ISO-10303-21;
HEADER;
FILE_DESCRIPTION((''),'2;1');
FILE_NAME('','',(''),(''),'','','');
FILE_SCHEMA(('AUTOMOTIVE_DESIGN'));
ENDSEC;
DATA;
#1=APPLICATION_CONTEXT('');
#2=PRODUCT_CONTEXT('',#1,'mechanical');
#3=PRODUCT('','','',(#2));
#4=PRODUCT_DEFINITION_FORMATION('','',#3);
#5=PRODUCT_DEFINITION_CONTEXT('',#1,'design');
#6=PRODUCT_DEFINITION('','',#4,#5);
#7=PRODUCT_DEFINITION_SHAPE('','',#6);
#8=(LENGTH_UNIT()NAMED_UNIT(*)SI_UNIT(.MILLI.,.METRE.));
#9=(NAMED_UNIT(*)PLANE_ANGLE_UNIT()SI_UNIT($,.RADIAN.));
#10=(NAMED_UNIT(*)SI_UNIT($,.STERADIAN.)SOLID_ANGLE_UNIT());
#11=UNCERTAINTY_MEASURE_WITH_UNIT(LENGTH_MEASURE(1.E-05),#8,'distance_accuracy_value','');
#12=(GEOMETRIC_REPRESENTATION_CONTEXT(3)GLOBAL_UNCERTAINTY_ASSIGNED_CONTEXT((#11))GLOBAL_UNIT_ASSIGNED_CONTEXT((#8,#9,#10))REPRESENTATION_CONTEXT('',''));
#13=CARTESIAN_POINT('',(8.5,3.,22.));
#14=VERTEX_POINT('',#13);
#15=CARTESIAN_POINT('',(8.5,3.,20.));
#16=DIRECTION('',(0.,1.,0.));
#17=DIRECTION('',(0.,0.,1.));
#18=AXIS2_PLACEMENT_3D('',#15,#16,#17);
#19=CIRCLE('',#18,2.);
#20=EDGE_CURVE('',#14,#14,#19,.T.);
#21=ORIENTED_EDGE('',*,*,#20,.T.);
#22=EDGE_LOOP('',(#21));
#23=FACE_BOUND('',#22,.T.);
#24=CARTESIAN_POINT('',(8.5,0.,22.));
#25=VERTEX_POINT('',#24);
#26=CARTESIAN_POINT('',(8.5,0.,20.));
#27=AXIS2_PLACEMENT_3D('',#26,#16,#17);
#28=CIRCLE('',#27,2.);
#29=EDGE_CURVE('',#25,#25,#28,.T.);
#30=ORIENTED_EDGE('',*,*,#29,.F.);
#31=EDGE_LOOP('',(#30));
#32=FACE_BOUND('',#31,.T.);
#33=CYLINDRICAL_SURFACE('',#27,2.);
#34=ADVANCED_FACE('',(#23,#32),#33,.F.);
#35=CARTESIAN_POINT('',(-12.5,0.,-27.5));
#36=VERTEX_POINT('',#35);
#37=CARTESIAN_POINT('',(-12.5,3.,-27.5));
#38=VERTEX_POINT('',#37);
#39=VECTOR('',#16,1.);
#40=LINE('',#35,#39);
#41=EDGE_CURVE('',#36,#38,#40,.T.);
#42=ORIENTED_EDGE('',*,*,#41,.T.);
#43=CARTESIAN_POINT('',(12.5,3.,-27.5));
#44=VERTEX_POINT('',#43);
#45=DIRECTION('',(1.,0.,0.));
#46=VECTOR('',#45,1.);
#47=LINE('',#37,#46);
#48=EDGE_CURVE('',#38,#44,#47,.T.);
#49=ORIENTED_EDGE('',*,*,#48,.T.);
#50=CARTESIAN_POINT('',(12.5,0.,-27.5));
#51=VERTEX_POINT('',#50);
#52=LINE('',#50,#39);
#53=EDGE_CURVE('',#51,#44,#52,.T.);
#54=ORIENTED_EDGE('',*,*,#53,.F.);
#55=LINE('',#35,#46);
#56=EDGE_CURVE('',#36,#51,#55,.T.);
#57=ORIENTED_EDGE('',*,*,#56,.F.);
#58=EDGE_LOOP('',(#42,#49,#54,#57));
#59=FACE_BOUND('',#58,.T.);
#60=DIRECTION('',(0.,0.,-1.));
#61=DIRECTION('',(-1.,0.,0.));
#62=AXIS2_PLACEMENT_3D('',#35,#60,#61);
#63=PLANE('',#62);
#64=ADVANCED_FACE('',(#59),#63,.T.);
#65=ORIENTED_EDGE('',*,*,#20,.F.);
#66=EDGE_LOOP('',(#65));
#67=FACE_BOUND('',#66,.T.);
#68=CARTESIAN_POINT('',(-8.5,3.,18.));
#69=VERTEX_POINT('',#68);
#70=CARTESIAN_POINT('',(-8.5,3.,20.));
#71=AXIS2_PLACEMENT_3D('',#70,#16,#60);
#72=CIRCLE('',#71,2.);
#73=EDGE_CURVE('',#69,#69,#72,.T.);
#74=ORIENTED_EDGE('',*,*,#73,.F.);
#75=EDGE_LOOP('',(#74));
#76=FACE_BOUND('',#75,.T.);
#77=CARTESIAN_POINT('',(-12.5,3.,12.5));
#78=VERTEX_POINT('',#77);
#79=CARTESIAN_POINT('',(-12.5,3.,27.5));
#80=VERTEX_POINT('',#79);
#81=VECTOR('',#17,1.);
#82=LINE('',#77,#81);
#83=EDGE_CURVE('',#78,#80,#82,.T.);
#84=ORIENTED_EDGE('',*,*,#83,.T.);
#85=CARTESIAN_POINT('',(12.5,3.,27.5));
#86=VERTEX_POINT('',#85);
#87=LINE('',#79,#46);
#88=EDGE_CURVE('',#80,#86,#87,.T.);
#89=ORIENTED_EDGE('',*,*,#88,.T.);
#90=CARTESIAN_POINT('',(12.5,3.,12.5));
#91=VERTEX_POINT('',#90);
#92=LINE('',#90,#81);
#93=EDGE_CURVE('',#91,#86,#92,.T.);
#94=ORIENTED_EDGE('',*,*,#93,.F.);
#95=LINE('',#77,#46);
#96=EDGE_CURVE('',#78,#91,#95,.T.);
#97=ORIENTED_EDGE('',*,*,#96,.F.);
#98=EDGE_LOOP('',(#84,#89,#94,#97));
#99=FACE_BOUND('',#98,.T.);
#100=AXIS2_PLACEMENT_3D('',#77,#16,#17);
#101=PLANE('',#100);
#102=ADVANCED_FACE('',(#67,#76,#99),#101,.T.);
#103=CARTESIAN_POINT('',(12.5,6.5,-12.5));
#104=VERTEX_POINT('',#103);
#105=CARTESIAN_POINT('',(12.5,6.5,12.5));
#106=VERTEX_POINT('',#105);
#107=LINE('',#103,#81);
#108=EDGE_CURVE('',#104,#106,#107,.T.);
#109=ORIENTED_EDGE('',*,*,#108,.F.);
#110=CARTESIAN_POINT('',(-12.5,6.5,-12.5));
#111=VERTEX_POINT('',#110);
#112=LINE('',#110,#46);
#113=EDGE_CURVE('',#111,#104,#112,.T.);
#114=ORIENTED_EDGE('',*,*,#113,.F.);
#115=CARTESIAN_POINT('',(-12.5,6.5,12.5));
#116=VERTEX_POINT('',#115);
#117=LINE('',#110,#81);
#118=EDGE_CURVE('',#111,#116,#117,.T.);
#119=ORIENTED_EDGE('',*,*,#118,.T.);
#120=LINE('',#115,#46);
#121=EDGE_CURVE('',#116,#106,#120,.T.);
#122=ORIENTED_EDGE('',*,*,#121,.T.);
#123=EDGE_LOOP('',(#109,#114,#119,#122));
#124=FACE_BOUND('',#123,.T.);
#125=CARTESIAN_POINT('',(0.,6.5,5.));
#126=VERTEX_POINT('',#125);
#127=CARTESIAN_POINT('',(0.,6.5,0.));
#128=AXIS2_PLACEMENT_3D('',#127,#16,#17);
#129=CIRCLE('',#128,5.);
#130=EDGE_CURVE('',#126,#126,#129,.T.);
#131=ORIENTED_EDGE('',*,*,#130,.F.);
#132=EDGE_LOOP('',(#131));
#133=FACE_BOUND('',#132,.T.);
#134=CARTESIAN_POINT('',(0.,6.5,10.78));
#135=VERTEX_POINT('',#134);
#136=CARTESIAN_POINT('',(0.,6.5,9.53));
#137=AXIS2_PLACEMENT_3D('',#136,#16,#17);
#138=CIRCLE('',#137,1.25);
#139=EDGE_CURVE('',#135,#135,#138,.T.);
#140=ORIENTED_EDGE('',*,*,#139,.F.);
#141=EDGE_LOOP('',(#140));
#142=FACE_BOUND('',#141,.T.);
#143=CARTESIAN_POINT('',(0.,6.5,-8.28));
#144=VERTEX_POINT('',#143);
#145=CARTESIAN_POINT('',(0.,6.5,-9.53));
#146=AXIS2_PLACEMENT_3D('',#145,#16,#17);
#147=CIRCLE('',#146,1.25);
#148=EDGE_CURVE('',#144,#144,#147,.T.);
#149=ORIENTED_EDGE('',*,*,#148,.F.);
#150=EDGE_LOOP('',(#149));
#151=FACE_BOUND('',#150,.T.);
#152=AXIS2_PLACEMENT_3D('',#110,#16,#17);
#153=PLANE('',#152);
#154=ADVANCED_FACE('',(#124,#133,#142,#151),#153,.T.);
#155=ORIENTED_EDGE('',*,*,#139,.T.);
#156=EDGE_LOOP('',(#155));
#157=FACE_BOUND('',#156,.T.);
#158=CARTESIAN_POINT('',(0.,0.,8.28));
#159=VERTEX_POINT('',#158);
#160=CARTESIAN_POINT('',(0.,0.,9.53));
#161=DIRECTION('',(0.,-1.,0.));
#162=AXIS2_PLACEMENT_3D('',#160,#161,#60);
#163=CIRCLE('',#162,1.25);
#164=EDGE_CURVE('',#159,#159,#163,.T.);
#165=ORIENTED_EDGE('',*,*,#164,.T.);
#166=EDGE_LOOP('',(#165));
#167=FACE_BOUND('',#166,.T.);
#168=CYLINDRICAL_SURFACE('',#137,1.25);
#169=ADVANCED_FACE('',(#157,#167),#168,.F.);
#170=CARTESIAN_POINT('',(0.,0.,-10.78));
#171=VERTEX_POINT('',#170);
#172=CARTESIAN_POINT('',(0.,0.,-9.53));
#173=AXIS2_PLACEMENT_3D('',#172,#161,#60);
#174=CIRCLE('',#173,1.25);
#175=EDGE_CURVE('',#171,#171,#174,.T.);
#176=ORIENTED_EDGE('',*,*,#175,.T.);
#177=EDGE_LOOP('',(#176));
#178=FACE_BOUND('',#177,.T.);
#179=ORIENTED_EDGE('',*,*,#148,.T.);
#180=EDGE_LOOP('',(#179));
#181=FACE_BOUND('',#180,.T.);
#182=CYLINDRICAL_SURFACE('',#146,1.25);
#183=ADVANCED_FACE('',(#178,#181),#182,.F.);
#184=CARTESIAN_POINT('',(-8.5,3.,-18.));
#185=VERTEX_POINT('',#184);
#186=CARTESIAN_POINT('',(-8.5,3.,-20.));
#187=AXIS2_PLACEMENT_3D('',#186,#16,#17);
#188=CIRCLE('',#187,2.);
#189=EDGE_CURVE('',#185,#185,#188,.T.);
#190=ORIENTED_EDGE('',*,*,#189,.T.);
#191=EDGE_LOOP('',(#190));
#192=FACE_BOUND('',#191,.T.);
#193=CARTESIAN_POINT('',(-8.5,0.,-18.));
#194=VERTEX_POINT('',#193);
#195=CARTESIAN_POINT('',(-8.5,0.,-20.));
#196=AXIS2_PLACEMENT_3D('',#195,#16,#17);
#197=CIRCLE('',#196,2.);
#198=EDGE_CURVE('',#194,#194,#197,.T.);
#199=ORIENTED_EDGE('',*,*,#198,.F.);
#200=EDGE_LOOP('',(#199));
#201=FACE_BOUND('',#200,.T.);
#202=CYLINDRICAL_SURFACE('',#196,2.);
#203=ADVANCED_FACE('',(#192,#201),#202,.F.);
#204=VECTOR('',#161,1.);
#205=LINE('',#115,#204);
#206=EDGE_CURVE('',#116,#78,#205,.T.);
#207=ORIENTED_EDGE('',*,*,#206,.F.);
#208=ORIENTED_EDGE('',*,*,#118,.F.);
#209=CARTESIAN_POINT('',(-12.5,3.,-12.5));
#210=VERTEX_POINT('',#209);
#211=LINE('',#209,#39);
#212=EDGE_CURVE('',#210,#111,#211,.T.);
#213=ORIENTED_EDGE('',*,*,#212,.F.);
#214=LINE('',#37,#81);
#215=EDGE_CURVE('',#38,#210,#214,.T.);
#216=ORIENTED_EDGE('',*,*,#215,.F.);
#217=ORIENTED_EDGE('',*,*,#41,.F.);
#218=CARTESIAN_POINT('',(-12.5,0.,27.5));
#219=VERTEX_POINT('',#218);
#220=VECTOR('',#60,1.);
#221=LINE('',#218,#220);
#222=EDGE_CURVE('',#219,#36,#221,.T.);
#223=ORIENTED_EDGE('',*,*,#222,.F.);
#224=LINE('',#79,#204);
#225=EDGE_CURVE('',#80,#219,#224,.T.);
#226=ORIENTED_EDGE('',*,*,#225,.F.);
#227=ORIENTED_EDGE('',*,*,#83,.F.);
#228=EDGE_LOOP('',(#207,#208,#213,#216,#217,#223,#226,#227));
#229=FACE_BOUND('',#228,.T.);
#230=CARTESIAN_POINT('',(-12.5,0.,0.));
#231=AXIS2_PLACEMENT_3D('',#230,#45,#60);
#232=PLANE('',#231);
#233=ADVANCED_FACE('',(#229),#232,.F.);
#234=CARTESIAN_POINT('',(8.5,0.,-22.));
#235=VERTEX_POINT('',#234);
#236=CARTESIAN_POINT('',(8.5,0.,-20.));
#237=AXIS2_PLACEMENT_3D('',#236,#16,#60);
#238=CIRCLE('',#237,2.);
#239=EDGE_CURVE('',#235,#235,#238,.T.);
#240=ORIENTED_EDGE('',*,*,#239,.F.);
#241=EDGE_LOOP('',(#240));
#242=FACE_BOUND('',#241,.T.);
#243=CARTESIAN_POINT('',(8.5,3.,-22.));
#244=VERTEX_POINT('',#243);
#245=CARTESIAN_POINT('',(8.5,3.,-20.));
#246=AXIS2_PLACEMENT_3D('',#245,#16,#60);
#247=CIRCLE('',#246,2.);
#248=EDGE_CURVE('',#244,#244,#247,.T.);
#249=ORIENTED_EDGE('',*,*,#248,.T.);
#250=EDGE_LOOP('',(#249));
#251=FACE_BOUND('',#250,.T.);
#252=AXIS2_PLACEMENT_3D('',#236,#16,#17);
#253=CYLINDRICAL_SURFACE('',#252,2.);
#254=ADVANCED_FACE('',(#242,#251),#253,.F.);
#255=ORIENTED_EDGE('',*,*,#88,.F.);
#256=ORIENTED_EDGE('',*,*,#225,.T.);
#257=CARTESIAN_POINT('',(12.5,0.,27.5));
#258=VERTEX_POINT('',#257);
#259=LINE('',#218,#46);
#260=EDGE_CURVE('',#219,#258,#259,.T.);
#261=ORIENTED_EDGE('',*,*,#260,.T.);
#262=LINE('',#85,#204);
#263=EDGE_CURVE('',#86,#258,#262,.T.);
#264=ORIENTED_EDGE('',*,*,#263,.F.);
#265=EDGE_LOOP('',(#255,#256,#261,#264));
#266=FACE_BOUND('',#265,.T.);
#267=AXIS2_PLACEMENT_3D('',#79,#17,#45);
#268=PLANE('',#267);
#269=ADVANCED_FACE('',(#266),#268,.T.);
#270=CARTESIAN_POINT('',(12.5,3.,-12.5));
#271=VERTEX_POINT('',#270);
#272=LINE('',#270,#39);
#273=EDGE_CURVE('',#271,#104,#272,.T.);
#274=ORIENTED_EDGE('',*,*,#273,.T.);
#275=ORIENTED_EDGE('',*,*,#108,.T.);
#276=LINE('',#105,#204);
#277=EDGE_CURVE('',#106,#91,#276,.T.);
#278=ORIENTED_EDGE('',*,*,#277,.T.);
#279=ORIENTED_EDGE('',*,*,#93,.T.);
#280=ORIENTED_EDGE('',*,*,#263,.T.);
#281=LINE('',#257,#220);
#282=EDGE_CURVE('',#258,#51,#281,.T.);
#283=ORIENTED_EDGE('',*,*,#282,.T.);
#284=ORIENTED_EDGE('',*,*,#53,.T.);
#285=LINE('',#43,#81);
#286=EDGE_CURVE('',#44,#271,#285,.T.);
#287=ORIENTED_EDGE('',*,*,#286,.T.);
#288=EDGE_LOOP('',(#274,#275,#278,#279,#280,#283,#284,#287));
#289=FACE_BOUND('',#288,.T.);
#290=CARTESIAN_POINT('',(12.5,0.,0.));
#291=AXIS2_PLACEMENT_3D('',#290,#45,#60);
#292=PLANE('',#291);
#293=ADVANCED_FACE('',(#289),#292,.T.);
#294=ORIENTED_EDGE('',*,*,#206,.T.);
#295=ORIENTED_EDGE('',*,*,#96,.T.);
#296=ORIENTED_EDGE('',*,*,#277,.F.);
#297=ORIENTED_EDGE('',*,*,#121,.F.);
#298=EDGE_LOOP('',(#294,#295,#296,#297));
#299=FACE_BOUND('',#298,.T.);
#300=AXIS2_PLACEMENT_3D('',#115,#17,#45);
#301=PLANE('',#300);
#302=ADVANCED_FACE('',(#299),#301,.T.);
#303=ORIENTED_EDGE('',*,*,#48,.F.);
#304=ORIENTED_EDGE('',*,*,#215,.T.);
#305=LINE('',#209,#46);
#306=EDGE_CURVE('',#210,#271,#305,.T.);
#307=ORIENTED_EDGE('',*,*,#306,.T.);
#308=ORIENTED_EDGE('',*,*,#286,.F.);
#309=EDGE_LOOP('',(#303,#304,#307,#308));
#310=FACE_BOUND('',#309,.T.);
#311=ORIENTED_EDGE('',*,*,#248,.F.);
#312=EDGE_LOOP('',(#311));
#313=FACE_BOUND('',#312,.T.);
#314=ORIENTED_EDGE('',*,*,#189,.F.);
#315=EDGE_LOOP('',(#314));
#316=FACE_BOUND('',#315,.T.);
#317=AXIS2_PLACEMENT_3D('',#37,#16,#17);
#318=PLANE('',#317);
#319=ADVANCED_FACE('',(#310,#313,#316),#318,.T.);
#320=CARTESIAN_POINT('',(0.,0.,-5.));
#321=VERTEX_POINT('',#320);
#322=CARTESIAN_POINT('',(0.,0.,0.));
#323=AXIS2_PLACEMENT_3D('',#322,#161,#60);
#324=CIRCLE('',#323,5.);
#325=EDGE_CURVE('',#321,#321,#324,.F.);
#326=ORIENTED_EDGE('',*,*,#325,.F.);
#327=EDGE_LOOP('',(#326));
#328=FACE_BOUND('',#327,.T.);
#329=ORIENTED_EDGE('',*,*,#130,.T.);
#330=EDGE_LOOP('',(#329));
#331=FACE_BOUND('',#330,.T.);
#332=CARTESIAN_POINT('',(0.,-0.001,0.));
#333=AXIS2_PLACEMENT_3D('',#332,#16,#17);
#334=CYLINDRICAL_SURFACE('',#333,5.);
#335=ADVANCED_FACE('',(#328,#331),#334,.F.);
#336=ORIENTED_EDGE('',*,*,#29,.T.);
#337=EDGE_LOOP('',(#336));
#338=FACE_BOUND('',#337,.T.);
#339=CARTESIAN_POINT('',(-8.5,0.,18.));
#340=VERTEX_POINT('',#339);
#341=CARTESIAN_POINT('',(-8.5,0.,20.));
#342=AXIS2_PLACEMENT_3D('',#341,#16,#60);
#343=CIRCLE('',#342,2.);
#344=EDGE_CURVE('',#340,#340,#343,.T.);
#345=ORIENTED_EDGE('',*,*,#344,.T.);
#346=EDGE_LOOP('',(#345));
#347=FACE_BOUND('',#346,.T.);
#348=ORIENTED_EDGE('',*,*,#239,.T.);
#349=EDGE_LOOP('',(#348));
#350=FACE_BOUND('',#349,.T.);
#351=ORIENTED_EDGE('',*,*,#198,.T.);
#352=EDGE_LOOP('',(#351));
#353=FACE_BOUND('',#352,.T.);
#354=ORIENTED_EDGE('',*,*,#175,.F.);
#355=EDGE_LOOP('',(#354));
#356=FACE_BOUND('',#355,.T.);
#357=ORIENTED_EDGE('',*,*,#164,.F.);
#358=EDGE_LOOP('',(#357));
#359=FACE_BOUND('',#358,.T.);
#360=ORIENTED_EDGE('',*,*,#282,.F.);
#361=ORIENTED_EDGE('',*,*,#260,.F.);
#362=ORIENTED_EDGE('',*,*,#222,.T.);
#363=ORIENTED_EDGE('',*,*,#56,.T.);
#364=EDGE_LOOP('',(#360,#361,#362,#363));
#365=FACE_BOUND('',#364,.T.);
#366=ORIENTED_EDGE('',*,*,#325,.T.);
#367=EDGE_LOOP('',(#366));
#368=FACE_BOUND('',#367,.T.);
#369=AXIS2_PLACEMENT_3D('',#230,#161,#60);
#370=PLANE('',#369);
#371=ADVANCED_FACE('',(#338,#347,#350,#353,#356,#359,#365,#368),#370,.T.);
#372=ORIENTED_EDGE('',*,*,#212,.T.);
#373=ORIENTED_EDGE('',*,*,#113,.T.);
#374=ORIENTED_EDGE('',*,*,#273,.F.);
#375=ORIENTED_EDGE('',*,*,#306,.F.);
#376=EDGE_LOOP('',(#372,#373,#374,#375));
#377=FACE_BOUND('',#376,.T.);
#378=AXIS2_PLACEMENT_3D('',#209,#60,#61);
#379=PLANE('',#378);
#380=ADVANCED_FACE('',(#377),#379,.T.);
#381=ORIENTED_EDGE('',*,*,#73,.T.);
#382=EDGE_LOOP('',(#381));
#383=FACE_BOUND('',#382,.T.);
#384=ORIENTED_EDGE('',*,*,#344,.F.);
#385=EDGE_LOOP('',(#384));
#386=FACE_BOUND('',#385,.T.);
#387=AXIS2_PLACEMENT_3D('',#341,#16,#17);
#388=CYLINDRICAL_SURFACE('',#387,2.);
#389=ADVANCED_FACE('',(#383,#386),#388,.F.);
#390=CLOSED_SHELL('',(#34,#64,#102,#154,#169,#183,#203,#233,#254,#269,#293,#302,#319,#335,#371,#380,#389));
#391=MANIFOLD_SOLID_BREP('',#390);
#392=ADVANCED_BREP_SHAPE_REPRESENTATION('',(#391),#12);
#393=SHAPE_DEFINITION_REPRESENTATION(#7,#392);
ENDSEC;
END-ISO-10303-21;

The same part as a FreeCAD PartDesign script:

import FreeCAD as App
import Part
import Sketcher
from FreeCAD import Vector
Q = App.Units.Quantity


def add_polygon(sketch, points):
    """Adds a closed chain of lines whose ends are joined by coincident constraints."""
    first, n = sketch.GeometryCount, len(points)
    for a, b in zip(points, points[1:] + points[:1]):
        sketch.addGeometry(Part.LineSegment(App.Vector(*a, 0), App.Vector(*b, 0)), False)
    for i in range(n):
        sketch.addConstraint(Sketcher.Constraint("Coincident", first + i, 2, first + (i + 1) % n, 1))

doc = App.newDocument("Part")
body = doc.addObject("PartDesign::Body", "Body")

# Sketch on YZ plane
sketch1 = body.newObject("Sketcher::SketchObject", "Sketch")
sketch1.AttachmentSupport = (doc.getObject("YZ_Plane"), [""])
sketch1.MapMode = "FlatFace"
add_polygon(sketch1, [(0, -27.5), (3, -27.5), (3, -12.5), (6.5, -12.5), (6.5, 12.5), (3, 12.5), (3, 27.5), (0, 27.5)])  # lines 0-7
sketch1.addConstraint([
    Sketcher.Constraint("Horizontal", 0),
    Sketcher.Constraint("Vertical", 1),
    Sketcher.Constraint("Horizontal", 2),
    Sketcher.Constraint("Vertical", 3),
    Sketcher.Constraint("Horizontal", 4),
    Sketcher.Constraint("Vertical", 5),
    Sketcher.Constraint("Horizontal", 6),
    Sketcher.Constraint("Vertical", 7),
    Sketcher.Constraint("Symmetric", 6, 2, 7, 2, -1, 1),
    Sketcher.Constraint("Symmetric", 1, 2, 4, 2, -1),
    Sketcher.Constraint("DistanceX", 0, 1, 0, 2, Q("3 mm")),
    Sketcher.Constraint("DistanceY", 1, 1, 1, 2, Q("15 mm")),
    Sketcher.Constraint("DistanceY", 3, 1, 3, 2, Q("25 mm")),
    Sketcher.Constraint("DistanceX", 2, 1, 2, 2, Q("3.5 mm")),
])
pad1 = body.newObject("PartDesign::Pad", "Pad")
pad1.Profile = sketch1
pad1.Type = "TwoLengths"
pad1.Length = 12.5
pad1.Length2 = 12.5

# Sketch on XZ plane
sketch2 = body.newObject("Sketcher::SketchObject", "Sketch001")
sketch2.AttachmentSupport = (doc.getObject("XZ_Plane"), [""])
sketch2.MapMode = "FlatFace"
sketch2.AttachmentOffset = App.Placement(Vector(0, 0, -3), App.Rotation())
sketch2.addGeometry([
    Part.Circle(Vector(-8.5, -20, 0), Vector(0, 0, 1), 2),
    Part.Circle(Vector(8.5, -20, 0), Vector(0, 0, 1), 2),
    Part.Circle(Vector(8.5, 20, 0), Vector(0, 0, 1), 2),
    Part.Circle(Vector(-8.5, 20, 0), Vector(0, 0, 1), 2),
], False)
sketch2.addConstraint([
    Sketcher.Constraint("Equal", 0, 1),
    Sketcher.Constraint("Equal", 1, 2),
    Sketcher.Constraint("Equal", 2, 3),
    Sketcher.Constraint("Symmetric", 0, 3, 2, 3, -1, 1),
    Sketcher.Constraint("Symmetric", 1, 3, 3, 3, -1, 1),
    Sketcher.Constraint("Symmetric", 0, 3, 1, 3, -2),
    Sketcher.Constraint("Diameter", 0, Q("4 mm")),
    Sketcher.Constraint("DistanceY", 0, 3, -1, 1, Q("20 mm")),
    Sketcher.Constraint("DistanceX", 0, 3, 1, 3, Q("17 mm")),
])
pocket1 = body.newObject("PartDesign::Pocket", "Pocket")
pocket1.Profile = sketch2
pocket1.Type = "ThroughAll"
pocket1.Reversed = True

# Sketch on XZ plane
sketch3 = body.newObject("Sketcher::SketchObject", "Sketch002")
sketch3.AttachmentSupport = (doc.getObject("XZ_Plane"), [""])
sketch3.MapMode = "FlatFace"
sketch3.AttachmentOffset = App.Placement(Vector(0, 0, -6.5), App.Rotation())
sketch3.addGeometry(Part.Circle(Vector(0, 0, 0), Vector(0, 0, 1), 5), False)
sketch3.addConstraint([
    Sketcher.Constraint("Coincident", 0, 3, -1, 1),
    Sketcher.Constraint("Diameter", 0, Q("10 mm")),
])
pocket2 = body.newObject("PartDesign::Pocket", "Pocket001")
pocket2.Profile = sketch3
pocket2.Type = "UpToFirst"
pocket2.Reversed = True

# Sketch on XZ plane
sketch4 = body.newObject("Sketcher::SketchObject", "Sketch003")
sketch4.AttachmentSupport = (doc.getObject("XZ_Plane"), [""])
sketch4.MapMode = "FlatFace"
sketch4.AttachmentOffset = App.Placement(Vector(0, 0, -6.5), App.Rotation())
sketch4.addGeometry([
    Part.Circle(Vector(0, -9.5, 0), Vector(0, 0, 1), 1.2),
    Part.Circle(Vector(0, 9.5, 0), Vector(0, 0, 1), 1.2),
], False)
sketch4.addConstraint([
    Sketcher.Constraint("Equal", 0, 1),
    Sketcher.Constraint("Symmetric", 0, 3, 1, 3, -1, 1),
    Sketcher.Constraint("PointOnObject", 0, 3, -2),
    Sketcher.Constraint("Diameter", 0, Q("2.5 mm")),
    Sketcher.Constraint("DistanceY", 0, 3, -1, 1, Q("9.53 mm")),
])
doc.recompute()
hole = body.newObject("PartDesign::Hole", "Hole")
hole.Profile = sketch4
hole.ThreadType = "None"
hole.Diameter = 2.5
hole.DepthType = "ThroughAll"
hole.Reversed = True

doc.recompute()
